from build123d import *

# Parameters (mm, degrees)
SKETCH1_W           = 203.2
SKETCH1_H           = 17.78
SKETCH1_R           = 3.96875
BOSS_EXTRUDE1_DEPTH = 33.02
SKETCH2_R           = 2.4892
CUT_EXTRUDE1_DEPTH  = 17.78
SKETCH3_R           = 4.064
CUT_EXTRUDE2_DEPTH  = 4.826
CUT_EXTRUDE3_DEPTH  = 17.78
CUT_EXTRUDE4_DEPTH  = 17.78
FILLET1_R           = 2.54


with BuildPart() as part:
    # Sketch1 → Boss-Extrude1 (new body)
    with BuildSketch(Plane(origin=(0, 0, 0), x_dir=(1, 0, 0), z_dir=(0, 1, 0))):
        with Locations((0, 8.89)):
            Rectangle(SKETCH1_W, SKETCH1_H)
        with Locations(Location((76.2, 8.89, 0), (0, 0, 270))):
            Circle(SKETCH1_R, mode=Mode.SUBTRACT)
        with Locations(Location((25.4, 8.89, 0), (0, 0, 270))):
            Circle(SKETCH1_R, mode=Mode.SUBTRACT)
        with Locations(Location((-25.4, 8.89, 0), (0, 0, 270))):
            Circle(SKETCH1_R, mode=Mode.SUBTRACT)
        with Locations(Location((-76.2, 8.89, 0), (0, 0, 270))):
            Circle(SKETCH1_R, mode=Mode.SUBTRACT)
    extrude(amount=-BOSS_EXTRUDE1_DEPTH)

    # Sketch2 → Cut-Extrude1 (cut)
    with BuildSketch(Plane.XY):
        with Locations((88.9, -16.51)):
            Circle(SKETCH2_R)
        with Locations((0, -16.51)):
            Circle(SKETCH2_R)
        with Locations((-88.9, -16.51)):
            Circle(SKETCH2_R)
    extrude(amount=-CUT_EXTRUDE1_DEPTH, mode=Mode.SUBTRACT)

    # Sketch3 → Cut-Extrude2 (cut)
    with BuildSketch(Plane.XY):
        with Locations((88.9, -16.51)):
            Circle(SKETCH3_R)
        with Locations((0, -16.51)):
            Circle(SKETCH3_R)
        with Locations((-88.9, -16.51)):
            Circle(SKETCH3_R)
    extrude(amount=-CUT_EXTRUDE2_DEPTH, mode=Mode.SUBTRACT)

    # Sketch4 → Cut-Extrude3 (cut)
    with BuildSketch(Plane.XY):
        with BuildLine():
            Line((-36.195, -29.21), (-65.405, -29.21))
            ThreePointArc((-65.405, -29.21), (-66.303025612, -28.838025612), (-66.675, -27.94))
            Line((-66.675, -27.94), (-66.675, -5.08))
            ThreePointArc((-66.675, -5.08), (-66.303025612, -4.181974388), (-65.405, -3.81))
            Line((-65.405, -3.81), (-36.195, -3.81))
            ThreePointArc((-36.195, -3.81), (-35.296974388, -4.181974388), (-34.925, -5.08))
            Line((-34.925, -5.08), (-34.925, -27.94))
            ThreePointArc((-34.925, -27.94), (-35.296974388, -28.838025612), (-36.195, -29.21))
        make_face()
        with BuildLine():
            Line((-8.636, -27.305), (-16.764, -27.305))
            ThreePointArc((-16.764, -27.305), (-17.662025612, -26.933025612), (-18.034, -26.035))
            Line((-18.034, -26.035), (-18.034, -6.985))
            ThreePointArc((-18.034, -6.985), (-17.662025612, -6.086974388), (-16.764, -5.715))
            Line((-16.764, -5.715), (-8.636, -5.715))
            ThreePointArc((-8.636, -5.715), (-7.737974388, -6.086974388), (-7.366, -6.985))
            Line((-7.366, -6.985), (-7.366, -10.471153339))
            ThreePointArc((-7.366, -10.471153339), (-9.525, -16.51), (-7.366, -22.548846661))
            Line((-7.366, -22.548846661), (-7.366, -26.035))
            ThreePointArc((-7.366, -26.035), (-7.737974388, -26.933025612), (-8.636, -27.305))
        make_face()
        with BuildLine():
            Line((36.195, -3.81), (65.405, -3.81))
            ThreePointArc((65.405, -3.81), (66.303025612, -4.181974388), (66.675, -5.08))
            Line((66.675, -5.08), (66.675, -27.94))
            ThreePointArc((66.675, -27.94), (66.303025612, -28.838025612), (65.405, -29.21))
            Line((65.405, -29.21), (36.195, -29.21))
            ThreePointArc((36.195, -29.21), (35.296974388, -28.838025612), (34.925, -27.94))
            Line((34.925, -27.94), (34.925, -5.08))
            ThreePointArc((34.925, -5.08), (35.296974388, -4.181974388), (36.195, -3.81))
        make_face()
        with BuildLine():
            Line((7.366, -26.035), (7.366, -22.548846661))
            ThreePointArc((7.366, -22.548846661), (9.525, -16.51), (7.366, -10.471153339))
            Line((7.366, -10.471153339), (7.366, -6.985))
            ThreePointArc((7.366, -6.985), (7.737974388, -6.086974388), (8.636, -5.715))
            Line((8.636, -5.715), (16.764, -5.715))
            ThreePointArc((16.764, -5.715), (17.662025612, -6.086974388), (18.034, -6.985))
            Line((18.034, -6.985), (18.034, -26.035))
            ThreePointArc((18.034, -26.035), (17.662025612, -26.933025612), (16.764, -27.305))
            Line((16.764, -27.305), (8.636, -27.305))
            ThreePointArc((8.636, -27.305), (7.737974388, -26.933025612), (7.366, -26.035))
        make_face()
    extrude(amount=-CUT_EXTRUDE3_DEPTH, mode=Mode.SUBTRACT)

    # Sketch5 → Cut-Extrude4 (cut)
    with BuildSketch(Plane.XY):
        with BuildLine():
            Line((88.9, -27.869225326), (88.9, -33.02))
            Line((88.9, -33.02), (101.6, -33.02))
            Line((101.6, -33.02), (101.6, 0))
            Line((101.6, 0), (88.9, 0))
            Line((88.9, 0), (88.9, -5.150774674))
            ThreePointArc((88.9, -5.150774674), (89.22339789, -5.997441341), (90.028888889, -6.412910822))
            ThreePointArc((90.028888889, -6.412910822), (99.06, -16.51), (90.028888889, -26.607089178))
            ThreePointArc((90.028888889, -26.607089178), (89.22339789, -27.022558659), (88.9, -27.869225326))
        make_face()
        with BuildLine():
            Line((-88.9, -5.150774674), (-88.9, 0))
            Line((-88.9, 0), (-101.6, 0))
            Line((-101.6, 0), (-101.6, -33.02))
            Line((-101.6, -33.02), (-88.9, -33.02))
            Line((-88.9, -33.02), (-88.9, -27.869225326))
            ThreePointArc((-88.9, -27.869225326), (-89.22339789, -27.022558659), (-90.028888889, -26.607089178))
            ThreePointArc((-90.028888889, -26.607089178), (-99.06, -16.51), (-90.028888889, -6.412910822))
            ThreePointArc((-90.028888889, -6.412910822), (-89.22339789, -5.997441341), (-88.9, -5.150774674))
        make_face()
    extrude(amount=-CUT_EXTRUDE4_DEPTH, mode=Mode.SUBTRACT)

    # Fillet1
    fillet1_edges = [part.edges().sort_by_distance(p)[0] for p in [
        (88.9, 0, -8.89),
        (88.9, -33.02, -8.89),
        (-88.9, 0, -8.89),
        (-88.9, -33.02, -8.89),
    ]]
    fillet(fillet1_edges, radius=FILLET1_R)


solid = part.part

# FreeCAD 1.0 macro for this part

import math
import FreeCAD as App
import Part
import Sketcher
Q = App.Units.Quantity


def edges_at(feature, points):
    """Names of the edges that pass closest to the given points."""
    edges = feature.Shape.Edges
    near = lambda p: min(range(len(edges)), key=lambda i: edges[i].distToShape(Part.Vertex(*p))[0])
    return sorted({f"Edge{near(p) + 1}" for p in points})

doc = App.newDocument("Part")
body = doc.addObject("PartDesign::Body", "Body")

# Sketch on XZ plane
sketch1 = body.newObject("Sketcher::SketchObject", "Sketch")
sketch1.AttachmentSupport = (doc.getObject("XZ_Plane"), [""])
sketch1.MapMode = "FlatFace"
sketch1.addGeometry([
    Part.LineSegment(App.Vector(-101.6, -17.8, 0), App.Vector(-101.6, 0, 0)),  # 0
    Part.LineSegment(App.Vector(-101.6, 0, 0), App.Vector(101.6, 0, 0)),  # 1
    Part.LineSegment(App.Vector(101.6, 0, 0), App.Vector(101.6, -17.8, 0)),  # 2
    Part.LineSegment(App.Vector(101.6, -17.8, 0), App.Vector(-101.6, -17.8, 0)),  # 3
    Part.Circle(App.Vector(-76.2, -8.9, 0), App.Vector(0, 0, 1), 4),  # 4
    Part.Circle(App.Vector(-25.4, -8.9, 0), App.Vector(0, 0, 1), 4),  # 5
    Part.Circle(App.Vector(25.4, -8.9, 0), App.Vector(0, 0, 1), 4),  # 6
    Part.Circle(App.Vector(76.2, -8.9, 0), App.Vector(0, 0, 1), 4),  # 7
], False)
sketch1.addConstraint([
    Sketcher.Constraint("Coincident", 0, 2, 1, 1),
    Sketcher.Constraint("Coincident", 1, 2, 2, 1),
    Sketcher.Constraint("Coincident", 2, 2, 3, 1),
    Sketcher.Constraint("Coincident", 3, 2, 0, 1),
    Sketcher.Constraint("Vertical", 0),
    Sketcher.Constraint("Horizontal", 1),
    Sketcher.Constraint("Vertical", 2),
    Sketcher.Constraint("Horizontal", 3),
    Sketcher.Constraint("Equal", 4, 5),
    Sketcher.Constraint("Equal", 5, 6),
    Sketcher.Constraint("Equal", 6, 7),
    Sketcher.Constraint("Symmetric", 0, 2, 1, 2, -1, 1),
    Sketcher.Constraint("Symmetric", 5, 3, 6, 3, -2),
    Sketcher.Constraint("Symmetric", 4, 3, 7, 3, -2),
    Sketcher.Constraint("Horizontal", 4, 3, 5, 3),
    Sketcher.Constraint("DistanceX", 1, 1, 1, 2, Q("8 in")),
    Sketcher.Constraint("Diameter", 4, Q("0.3125 in")),
    Sketcher.Constraint("DistanceY", 0, 1, 0, 2, Q("0.7 in")),
    Sketcher.Constraint("DistanceX", 4, 3, -1, 1, Q("3 in")),
    Sketcher.Constraint("DistanceX", 5, 3, -1, 1, Q("1 in")),
    Sketcher.Constraint("DistanceY", 4, 3, -1, 1, Q("0.35 in")),
])
pad1 = body.newObject("PartDesign::Pad", "Pad")
pad1.Profile = sketch1
pad1.Length = Q("1.3 in")

# Sketch on XY plane
sketch2 = body.newObject("Sketcher::SketchObject", "Sketch001")
sketch2.AttachmentSupport = (doc.getObject("XY_Plane"), [""])
sketch2.MapMode = "FlatFace"
sketch2.addGeometry([
    Part.Circle(App.Vector(88.9, -16.5, 0), App.Vector(0, 0, 1), 2.5),
    Part.Circle(App.Vector(0, -16.5, 0), App.Vector(0, 0, 1), 2.5),
    Part.Circle(App.Vector(-88.9, -16.5, 0), App.Vector(0, 0, 1), 2.5),
], False)
sketch2.addConstraint([
    Sketcher.Constraint("Equal", 0, 1),
    Sketcher.Constraint("Equal", 1, 2),
    Sketcher.Constraint("Symmetric", 0, 3, 2, 3, -2),
    Sketcher.Constraint("PointOnObject", 1, 3, -2),
    Sketcher.Constraint("Horizontal", 0, 3, 1, 3),
    Sketcher.Constraint("Diameter", 0, Q("0.196 in")),
    Sketcher.Constraint("DistanceX", 2, 3, 0, 3, Q("7 in")),
    Sketcher.Constraint("DistanceY", 0, 3, -1, 1, Q("0.65 in")),
])
pocket1 = body.newObject("PartDesign::Pocket", "Pocket")
pocket1.Profile = sketch2
pocket1.Length = Q("0.7 in")

# Sketch on XY plane
sketch3 = body.newObject("Sketcher::SketchObject", "Sketch002")
sketch3.AttachmentSupport = (doc.getObject("XY_Plane"), [""])
sketch3.MapMode = "FlatFace"
sketch3.addGeometry([
    Part.Circle(App.Vector(88.9, -16.5, 0), App.Vector(0, 0, 1), 4.1),
    Part.Circle(App.Vector(0, -16.5, 0), App.Vector(0, 0, 1), 4.1),
    Part.Circle(App.Vector(-88.9, -16.5, 0), App.Vector(0, 0, 1), 4.1),
], False)
sketch3.addConstraint([
    Sketcher.Constraint("Equal", 0, 1),
    Sketcher.Constraint("Equal", 1, 2),
    Sketcher.Constraint("Symmetric", 0, 3, 2, 3, -2),
    Sketcher.Constraint("PointOnObject", 1, 3, -2),
    Sketcher.Constraint("Horizontal", 0, 3, 1, 3),
    Sketcher.Constraint("Diameter", 0, Q("0.32 in")),
    Sketcher.Constraint("DistanceX", 2, 3, 0, 3, Q("7 in")),
    Sketcher.Constraint("DistanceY", 0, 3, -1, 1, Q("0.65 in")),
])
pocket2 = body.newObject("PartDesign::Pocket", "Pocket001")
pocket2.Profile = sketch3
pocket2.Length = Q("0.19 in")

# Sketch on XY plane
sketch4 = body.newObject("Sketcher::SketchObject", "Sketch003")
sketch4.AttachmentSupport = (doc.getObject("XY_Plane"), [""])
sketch4.MapMode = "FlatFace"
sketch4.addGeometry([
    Part.LineSegment(App.Vector(-65.4, -29.2, 0), App.Vector(-36.2, -29.2, 0)),  # 0
    Part.ArcOfCircle(Part.Circle(App.Vector(-36.2, -27.9, 0), App.Vector(0, 0, 1), 1.3), math.radians(-90), math.radians(0)),  # 1
    Part.LineSegment(App.Vector(-34.9, -27.9, 0), App.Vector(-34.9, -5.1, 0)),  # 2
    Part.ArcOfCircle(Part.Circle(App.Vector(-36.2, -5.1, 0), App.Vector(0, 0, 1), 1.3), math.radians(0), math.radians(90)),  # 3
    Part.LineSegment(App.Vector(-36.2, -3.8, 0), App.Vector(-65.4, -3.8, 0)),  # 4
    Part.ArcOfCircle(Part.Circle(App.Vector(-65.4, -5.1, 0), App.Vector(0, 0, 1), 1.3), math.radians(90), math.radians(180)),  # 5
    Part.LineSegment(App.Vector(-66.7, -5.1, 0), App.Vector(-66.7, -27.9, 0)),  # 6
    Part.ArcOfCircle(Part.Circle(App.Vector(-65.4, -27.9, 0), App.Vector(0, 0, 1), 1.3), math.radians(180), math.radians(270)),  # 7
    Part.LineSegment(App.Vector(-16.8, -27.3, 0), App.Vector(-8.6, -27.3, 0)),  # 8
    Part.ArcOfCircle(Part.Circle(App.Vector(-8.6, -26, 0), App.Vector(0, 0, 1), 1.3), math.radians(-90), math.radians(0)),  # 9
    Part.LineSegment(App.Vector(-7.4, -26, 0), App.Vector(-7.4, -22.5, 0)),  # 10
    Part.ArcOfCircle(Part.Circle(App.Vector(0, -16.5, 0), App.Vector(0, 0, 1), 9.5), math.radians(141), math.radians(219)),  # 11
    Part.LineSegment(App.Vector(-7.4, -10.5, 0), App.Vector(-7.4, -7, 0)),  # 12
    Part.ArcOfCircle(Part.Circle(App.Vector(-8.6, -7, 0), App.Vector(0, 0, 1), 1.3), math.radians(0), math.radians(90)),  # 13
    Part.LineSegment(App.Vector(-8.6, -5.7, 0), App.Vector(-16.8, -5.7, 0)),  # 14
    Part.ArcOfCircle(Part.Circle(App.Vector(-16.8, -7, 0), App.Vector(0, 0, 1), 1.3), math.radians(90), math.radians(180)),  # 15
    Part.LineSegment(App.Vector(-18, -7, 0), App.Vector(-18, -26, 0)),  # 16
    Part.ArcOfCircle(Part.Circle(App.Vector(-16.8, -26, 0), App.Vector(0, 0, 1), 1.3), math.radians(180), math.radians(270)),  # 17
    Part.LineSegment(App.Vector(65.4, -3.8, 0), App.Vector(36.2, -3.8, 0)),  # 18
    Part.ArcOfCircle(Part.Circle(App.Vector(36.2, -5.1, 0), App.Vector(0, 0, 1), 1.3), math.radians(90), math.radians(180)),  # 19
    Part.LineSegment(App.Vector(34.9, -5.1, 0), App.Vector(34.9, -27.9, 0)),  # 20
    Part.ArcOfCircle(Part.Circle(App.Vector(36.2, -27.9, 0), App.Vector(0, 0, 1), 1.3), math.radians(180), math.radians(270)),  # 21
    Part.LineSegment(App.Vector(36.2, -29.2, 0), App.Vector(65.4, -29.2, 0)),  # 22
    Part.ArcOfCircle(Part.Circle(App.Vector(65.4, -27.9, 0), App.Vector(0, 0, 1), 1.3), math.radians(-90), math.radians(0)),  # 23
    Part.LineSegment(App.Vector(66.7, -27.9, 0), App.Vector(66.7, -5.1, 0)),  # 24
    Part.ArcOfCircle(Part.Circle(App.Vector(65.4, -5.1, 0), App.Vector(0, 0, 1), 1.3), math.radians(0), math.radians(90)),  # 25
    Part.LineSegment(App.Vector(7.4, -22.5, 0), App.Vector(7.4, -26, 0)),  # 26
    Part.ArcOfCircle(Part.Circle(App.Vector(8.6, -26, 0), App.Vector(0, 0, 1), 1.3), math.radians(180), math.radians(270)),  # 27
    Part.LineSegment(App.Vector(8.6, -27.3, 0), App.Vector(16.8, -27.3, 0)),  # 28
    Part.ArcOfCircle(Part.Circle(App.Vector(16.8, -26, 0), App.Vector(0, 0, 1), 1.3), math.radians(-90), math.radians(0)),  # 29
    Part.LineSegment(App.Vector(18, -26, 0), App.Vector(18, -7, 0)),  # 30
    Part.ArcOfCircle(Part.Circle(App.Vector(16.8, -7, 0), App.Vector(0, 0, 1), 1.3), math.radians(0), math.radians(90)),  # 31
    Part.LineSegment(App.Vector(16.8, -5.7, 0), App.Vector(8.6, -5.7, 0)),  # 32
    Part.ArcOfCircle(Part.Circle(App.Vector(8.6, -7, 0), App.Vector(0, 0, 1), 1.3), math.radians(90), math.radians(180)),  # 33
    Part.LineSegment(App.Vector(7.4, -7, 0), App.Vector(7.4, -10.5, 0)),  # 34
    Part.ArcOfCircle(Part.Circle(App.Vector(0, -16.5, 0), App.Vector(0, 0, 1), 9.5), math.radians(-39), math.radians(39)),  # 35
], False)
sketch4.addConstraint([
    Sketcher.Constraint("Tangent", 0, 2, 1, 1),
    Sketcher.Constraint("Tangent", 1, 2, 2, 1),
    Sketcher.Constraint("Tangent", 2, 2, 3, 1),
    Sketcher.Constraint("Tangent", 3, 2, 4, 1),
    Sketcher.Constraint("Tangent", 4, 2, 5, 1),
    Sketcher.Constraint("Tangent", 5, 2, 6, 1),
    Sketcher.Constraint("Tangent", 6, 2, 7, 1),
    Sketcher.Constraint("Tangent", 7, 2, 0, 1),
    Sketcher.Constraint("Tangent", 8, 2, 9, 1),
    Sketcher.Constraint("Tangent", 9, 2, 10, 1),
    Sketcher.Constraint("Coincident", 10, 2, 11, 2),
    Sketcher.Constraint("Coincident", 11, 1, 12, 1),
    Sketcher.Constraint("Tangent", 12, 2, 13, 1),
    Sketcher.Constraint("Tangent", 13, 2, 14, 1),
    Sketcher.Constraint("Tangent", 14, 2, 15, 1),
    Sketcher.Constraint("Tangent", 15, 2, 16, 1),
    Sketcher.Constraint("Tangent", 16, 2, 17, 1),
    Sketcher.Constraint("Tangent", 17, 2, 8, 1),
    Sketcher.Constraint("Tangent", 18, 2, 19, 1),
    Sketcher.Constraint("Tangent", 19, 2, 20, 1),
    Sketcher.Constraint("Tangent", 20, 2, 21, 1),
    Sketcher.Constraint("Tangent", 21, 2, 22, 1),
    Sketcher.Constraint("Tangent", 22, 2, 23, 1),
    Sketcher.Constraint("Tangent", 23, 2, 24, 1),
    Sketcher.Constraint("Tangent", 24, 2, 25, 1),
    Sketcher.Constraint("Tangent", 25, 2, 18, 1),
    Sketcher.Constraint("Tangent", 26, 2, 27, 1),
    Sketcher.Constraint("Tangent", 27, 2, 28, 1),
    Sketcher.Constraint("Tangent", 28, 2, 29, 1),
    Sketcher.Constraint("Tangent", 29, 2, 30, 1),
    Sketcher.Constraint("Tangent", 30, 2, 31, 1),
    Sketcher.Constraint("Tangent", 31, 2, 32, 1),
    Sketcher.Constraint("Tangent", 32, 2, 33, 1),
    Sketcher.Constraint("Tangent", 33, 2, 34, 1),
    Sketcher.Constraint("Coincident", 34, 2, 35, 2),
    Sketcher.Constraint("Coincident", 35, 1, 26, 1),
    Sketcher.Constraint("Horizontal", 0),
    Sketcher.Constraint("Vertical", 2),
    Sketcher.Constraint("Horizontal", 4),
    Sketcher.Constraint("Vertical", 6),
    Sketcher.Constraint("Horizontal", 8),
    Sketcher.Constraint("Vertical", 10),
    Sketcher.Constraint("Vertical", 12),
    Sketcher.Constraint("Horizontal", 14),
    Sketcher.Constraint("Vertical", 16),
    Sketcher.Constraint("Horizontal", 18),
    Sketcher.Constraint("Vertical", 20),
    Sketcher.Constraint("Horizontal", 22),
    Sketcher.Constraint("Vertical", 24),
    Sketcher.Constraint("Vertical", 26),
    Sketcher.Constraint("Horizontal", 28),
    Sketcher.Constraint("Vertical", 30),
    Sketcher.Constraint("Horizontal", 32),
    Sketcher.Constraint("Vertical", 34),
    Sketcher.Constraint("Coincident", 35, 3, 11, 3),
    Sketcher.Constraint("Equal", 1, 3),
    Sketcher.Constraint("Equal", 3, 5),
    Sketcher.Constraint("Equal", 5, 7),
    Sketcher.Constraint("Equal", 7, 9),
    Sketcher.Constraint("Equal", 9, 13),
    Sketcher.Constraint("Equal", 13, 15),
    Sketcher.Constraint("Equal", 15, 17),
    Sketcher.Constraint("Equal", 17, 19),
    Sketcher.Constraint("Equal", 19, 21),
    Sketcher.Constraint("Equal", 21, 23),
    Sketcher.Constraint("Equal", 23, 25),
    Sketcher.Constraint("Equal", 25, 27),
    Sketcher.Constraint("Equal", 27, 29),
    Sketcher.Constraint("Equal", 29, 31),
    Sketcher.Constraint("Equal", 31, 33),
    Sketcher.Constraint("Equal", 11, 35),
    Sketcher.Constraint("Symmetric", 3, 3, 19, 3, -2),
    Sketcher.Constraint("Symmetric", 7, 3, 23, 3, -2),
    Sketcher.Constraint("Symmetric", 9, 3, 27, 3, -2),
    Sketcher.Constraint("Symmetric", 15, 3, 31, 3, -2),
    Sketcher.Constraint("Symmetric", 11, 1, 34, 2, -2),
    Sketcher.Constraint("Vertical", 9, 3, 13, 3),
    Sketcher.Constraint("Equal", 10, 12),
    Sketcher.Constraint("Radius", 1, Q("0.05 in")),
    Sketcher.Constraint("DistanceY", 2, 1, 2, 2, Q("0.9 in")),
    Sketcher.Constraint("Radius", 11, Q("0.375 in")),
    Sketcher.Constraint("DistanceX", 17, 3, 27, 3, Q("1 in")),
    Sketcher.Constraint("DistanceX", 0, 1, 0, 2, Q("1.15 in")),
    Sketcher.Constraint("DistanceX", 8, 1, 8, 2, Q("0.32 in")),
    Sketcher.Constraint("DistanceY", 16, 2, 16, 1, Q("0.75 in")),
    Sketcher.Constraint("DistanceY", 1, 3, -1, 1, Q("1.1 in")),
    Sketcher.Constraint("DistanceY", 11, 3, -1, 1, Q("0.65 in")),
    Sketcher.Constraint("DistanceX", 1, 3, -1, 1, Q("1.425 in")),
])
pocket3 = body.newObject("PartDesign::Pocket", "Pocket002")
pocket3.Profile = sketch4
pocket3.Length = Q("0.7 in")

# Sketch on XY plane
sketch5 = body.newObject("Sketcher::SketchObject", "Sketch004")
sketch5.AttachmentSupport = (doc.getObject("XY_Plane"), [""])
sketch5.MapMode = "FlatFace"
sketch5.addGeometry([
    Part.LineSegment(App.Vector(88.9, -27.9, 0), App.Vector(88.9, -33, 0)),  # 0
    Part.LineSegment(App.Vector(88.9, -33, 0), App.Vector(101.6, -33, 0)),  # 1
    Part.LineSegment(App.Vector(101.6, -33, 0), App.Vector(101.6, 0, 0)),  # 2
    Part.LineSegment(App.Vector(101.6, 0, 0), App.Vector(88.9, 0, 0)),  # 3
    Part.LineSegment(App.Vector(88.9, 0, 0), App.Vector(88.9, -5.2, 0)),  # 4
    Part.ArcOfCircle(Part.Circle(App.Vector(90.2, -5.2, 0), App.Vector(0, 0, 1), 1.3), math.radians(-180), math.radians(-96)),  # 5
    Part.ArcOfCircle(Part.Circle(App.Vector(88.9, -16.5, 0), App.Vector(0, 0, 1), 10.2), math.radians(-84), math.radians(84)),  # 6
    Part.ArcOfCircle(Part.Circle(App.Vector(90.2, -27.9, 0), App.Vector(0, 0, 1), 1.3), math.radians(96), math.radians(180)),  # 7
    Part.LineSegment(App.Vector(-88.9, -5.2, 0), App.Vector(-88.9, 0, 0)),  # 8
    Part.LineSegment(App.Vector(-88.9, 0, 0), App.Vector(-101.6, 0, 0)),  # 9
    Part.LineSegment(App.Vector(-101.6, 0, 0), App.Vector(-101.6, -33, 0)),  # 10
    Part.LineSegment(App.Vector(-101.6, -33, 0), App.Vector(-88.9, -33, 0)),  # 11
    Part.LineSegment(App.Vector(-88.9, -33, 0), App.Vector(-88.9, -27.9, 0)),  # 12
    Part.ArcOfCircle(Part.Circle(App.Vector(-90.2, -27.9, 0), App.Vector(0, 0, 1), 1.3), math.radians(0), math.radians(84)),  # 13
    Part.ArcOfCircle(Part.Circle(App.Vector(-88.9, -16.5, 0), App.Vector(0, 0, 1), 10.2), math.radians(96), math.radians(264)),  # 14
    Part.ArcOfCircle(Part.Circle(App.Vector(-90.2, -5.2, 0), App.Vector(0, 0, 1), 1.3), math.radians(-84), math.radians(0)),  # 15
], False)
sketch5.addConstraint([
    Sketcher.Constraint("Coincident", 0, 2, 1, 1),
    Sketcher.Constraint("Coincident", 1, 2, 2, 1),
    Sketcher.Constraint("Coincident", 2, 2, 3, 1),
    Sketcher.Constraint("Coincident", 3, 2, 4, 1),
    Sketcher.Constraint("Tangent", 4, 2, 5, 1),
    Sketcher.Constraint("Tangent", 5, 2, 6, 2),
    Sketcher.Constraint("Tangent", 6, 1, 7, 1),
    Sketcher.Constraint("Tangent", 7, 2, 0, 1),
    Sketcher.Constraint("Coincident", 8, 2, 9, 1),
    Sketcher.Constraint("Coincident", 9, 2, 10, 1),
    Sketcher.Constraint("Coincident", 10, 2, 11, 1),
    Sketcher.Constraint("Coincident", 11, 2, 12, 1),
    Sketcher.Constraint("Tangent", 12, 2, 13, 1),
    Sketcher.Constraint("Tangent", 13, 2, 14, 2),
    Sketcher.Constraint("Tangent", 14, 1, 15, 1),
    Sketcher.Constraint("Tangent", 15, 2, 8, 1),
    Sketcher.Constraint("Vertical", 0),
    Sketcher.Constraint("Horizontal", 1),
    Sketcher.Constraint("Vertical", 2),
    Sketcher.Constraint("Horizontal", 3),
    Sketcher.Constraint("Vertical", 4),
    Sketcher.Constraint("Vertical", 8),
    Sketcher.Constraint("Horizontal", 9),
    Sketcher.Constraint("Vertical", 10),
    Sketcher.Constraint("Horizontal", 11),
    Sketcher.Constraint("Vertical", 12),
    Sketcher.Constraint("Equal", 5, 7),
    Sketcher.Constraint("Equal", 7, 13),
    Sketcher.Constraint("Equal", 6, 14),
    Sketcher.Constraint("Equal", 13, 15),
    Sketcher.Constraint("Symmetric", 3, 2, 8, 2, -1, 1),
    Sketcher.Constraint("Symmetric", 7, 3, 13, 3, -2),
    Sketcher.Constraint("Symmetric", 2, 2, 9, 2, -2),
    Sketcher.Constraint("Horizontal", 6, 3, 14, 3),
    Sketcher.Constraint("Horizontal", 1, 2, 10, 2),
    Sketcher.Constraint("Vertical", 5, 3, 7, 3),
    Sketcher.Constraint("Vertical", 6, 3, 0, 2),
    Sketcher.Constraint("Equal", 0, 4),
    Sketcher.Constraint("Radius", 6, Q("0.4 in")),
    Sketcher.Constraint("Radius", 5, Q("0.05 in")),
    Sketcher.Constraint("DistanceX", 1, 1, 1, 2, Q("0.5 in")),
    Sketcher.Constraint("DistanceY", 2, 1, 2, 2, Q("1.3 in")),
    Sketcher.Constraint("DistanceX", -1, 1, 1, 2, Q("4 in")),
])
pocket4 = body.newObject("PartDesign::Pocket", "Pocket003")
pocket4.Profile = sketch5
pocket4.Length = Q("0.7 in")
doc.recompute()

fillet = body.newObject("PartDesign::Fillet", "Fillet")
fillet.Base = (pocket4, edges_at(pocket4, [
    (88.9, 0, -8.89),
    (88.9, -33.02, -8.89),
    (-88.9, 0, -8.89),
    (-88.9, -33.02, -8.89),
]))
fillet.Radius = Q("0.1 in")

doc.recompute()
